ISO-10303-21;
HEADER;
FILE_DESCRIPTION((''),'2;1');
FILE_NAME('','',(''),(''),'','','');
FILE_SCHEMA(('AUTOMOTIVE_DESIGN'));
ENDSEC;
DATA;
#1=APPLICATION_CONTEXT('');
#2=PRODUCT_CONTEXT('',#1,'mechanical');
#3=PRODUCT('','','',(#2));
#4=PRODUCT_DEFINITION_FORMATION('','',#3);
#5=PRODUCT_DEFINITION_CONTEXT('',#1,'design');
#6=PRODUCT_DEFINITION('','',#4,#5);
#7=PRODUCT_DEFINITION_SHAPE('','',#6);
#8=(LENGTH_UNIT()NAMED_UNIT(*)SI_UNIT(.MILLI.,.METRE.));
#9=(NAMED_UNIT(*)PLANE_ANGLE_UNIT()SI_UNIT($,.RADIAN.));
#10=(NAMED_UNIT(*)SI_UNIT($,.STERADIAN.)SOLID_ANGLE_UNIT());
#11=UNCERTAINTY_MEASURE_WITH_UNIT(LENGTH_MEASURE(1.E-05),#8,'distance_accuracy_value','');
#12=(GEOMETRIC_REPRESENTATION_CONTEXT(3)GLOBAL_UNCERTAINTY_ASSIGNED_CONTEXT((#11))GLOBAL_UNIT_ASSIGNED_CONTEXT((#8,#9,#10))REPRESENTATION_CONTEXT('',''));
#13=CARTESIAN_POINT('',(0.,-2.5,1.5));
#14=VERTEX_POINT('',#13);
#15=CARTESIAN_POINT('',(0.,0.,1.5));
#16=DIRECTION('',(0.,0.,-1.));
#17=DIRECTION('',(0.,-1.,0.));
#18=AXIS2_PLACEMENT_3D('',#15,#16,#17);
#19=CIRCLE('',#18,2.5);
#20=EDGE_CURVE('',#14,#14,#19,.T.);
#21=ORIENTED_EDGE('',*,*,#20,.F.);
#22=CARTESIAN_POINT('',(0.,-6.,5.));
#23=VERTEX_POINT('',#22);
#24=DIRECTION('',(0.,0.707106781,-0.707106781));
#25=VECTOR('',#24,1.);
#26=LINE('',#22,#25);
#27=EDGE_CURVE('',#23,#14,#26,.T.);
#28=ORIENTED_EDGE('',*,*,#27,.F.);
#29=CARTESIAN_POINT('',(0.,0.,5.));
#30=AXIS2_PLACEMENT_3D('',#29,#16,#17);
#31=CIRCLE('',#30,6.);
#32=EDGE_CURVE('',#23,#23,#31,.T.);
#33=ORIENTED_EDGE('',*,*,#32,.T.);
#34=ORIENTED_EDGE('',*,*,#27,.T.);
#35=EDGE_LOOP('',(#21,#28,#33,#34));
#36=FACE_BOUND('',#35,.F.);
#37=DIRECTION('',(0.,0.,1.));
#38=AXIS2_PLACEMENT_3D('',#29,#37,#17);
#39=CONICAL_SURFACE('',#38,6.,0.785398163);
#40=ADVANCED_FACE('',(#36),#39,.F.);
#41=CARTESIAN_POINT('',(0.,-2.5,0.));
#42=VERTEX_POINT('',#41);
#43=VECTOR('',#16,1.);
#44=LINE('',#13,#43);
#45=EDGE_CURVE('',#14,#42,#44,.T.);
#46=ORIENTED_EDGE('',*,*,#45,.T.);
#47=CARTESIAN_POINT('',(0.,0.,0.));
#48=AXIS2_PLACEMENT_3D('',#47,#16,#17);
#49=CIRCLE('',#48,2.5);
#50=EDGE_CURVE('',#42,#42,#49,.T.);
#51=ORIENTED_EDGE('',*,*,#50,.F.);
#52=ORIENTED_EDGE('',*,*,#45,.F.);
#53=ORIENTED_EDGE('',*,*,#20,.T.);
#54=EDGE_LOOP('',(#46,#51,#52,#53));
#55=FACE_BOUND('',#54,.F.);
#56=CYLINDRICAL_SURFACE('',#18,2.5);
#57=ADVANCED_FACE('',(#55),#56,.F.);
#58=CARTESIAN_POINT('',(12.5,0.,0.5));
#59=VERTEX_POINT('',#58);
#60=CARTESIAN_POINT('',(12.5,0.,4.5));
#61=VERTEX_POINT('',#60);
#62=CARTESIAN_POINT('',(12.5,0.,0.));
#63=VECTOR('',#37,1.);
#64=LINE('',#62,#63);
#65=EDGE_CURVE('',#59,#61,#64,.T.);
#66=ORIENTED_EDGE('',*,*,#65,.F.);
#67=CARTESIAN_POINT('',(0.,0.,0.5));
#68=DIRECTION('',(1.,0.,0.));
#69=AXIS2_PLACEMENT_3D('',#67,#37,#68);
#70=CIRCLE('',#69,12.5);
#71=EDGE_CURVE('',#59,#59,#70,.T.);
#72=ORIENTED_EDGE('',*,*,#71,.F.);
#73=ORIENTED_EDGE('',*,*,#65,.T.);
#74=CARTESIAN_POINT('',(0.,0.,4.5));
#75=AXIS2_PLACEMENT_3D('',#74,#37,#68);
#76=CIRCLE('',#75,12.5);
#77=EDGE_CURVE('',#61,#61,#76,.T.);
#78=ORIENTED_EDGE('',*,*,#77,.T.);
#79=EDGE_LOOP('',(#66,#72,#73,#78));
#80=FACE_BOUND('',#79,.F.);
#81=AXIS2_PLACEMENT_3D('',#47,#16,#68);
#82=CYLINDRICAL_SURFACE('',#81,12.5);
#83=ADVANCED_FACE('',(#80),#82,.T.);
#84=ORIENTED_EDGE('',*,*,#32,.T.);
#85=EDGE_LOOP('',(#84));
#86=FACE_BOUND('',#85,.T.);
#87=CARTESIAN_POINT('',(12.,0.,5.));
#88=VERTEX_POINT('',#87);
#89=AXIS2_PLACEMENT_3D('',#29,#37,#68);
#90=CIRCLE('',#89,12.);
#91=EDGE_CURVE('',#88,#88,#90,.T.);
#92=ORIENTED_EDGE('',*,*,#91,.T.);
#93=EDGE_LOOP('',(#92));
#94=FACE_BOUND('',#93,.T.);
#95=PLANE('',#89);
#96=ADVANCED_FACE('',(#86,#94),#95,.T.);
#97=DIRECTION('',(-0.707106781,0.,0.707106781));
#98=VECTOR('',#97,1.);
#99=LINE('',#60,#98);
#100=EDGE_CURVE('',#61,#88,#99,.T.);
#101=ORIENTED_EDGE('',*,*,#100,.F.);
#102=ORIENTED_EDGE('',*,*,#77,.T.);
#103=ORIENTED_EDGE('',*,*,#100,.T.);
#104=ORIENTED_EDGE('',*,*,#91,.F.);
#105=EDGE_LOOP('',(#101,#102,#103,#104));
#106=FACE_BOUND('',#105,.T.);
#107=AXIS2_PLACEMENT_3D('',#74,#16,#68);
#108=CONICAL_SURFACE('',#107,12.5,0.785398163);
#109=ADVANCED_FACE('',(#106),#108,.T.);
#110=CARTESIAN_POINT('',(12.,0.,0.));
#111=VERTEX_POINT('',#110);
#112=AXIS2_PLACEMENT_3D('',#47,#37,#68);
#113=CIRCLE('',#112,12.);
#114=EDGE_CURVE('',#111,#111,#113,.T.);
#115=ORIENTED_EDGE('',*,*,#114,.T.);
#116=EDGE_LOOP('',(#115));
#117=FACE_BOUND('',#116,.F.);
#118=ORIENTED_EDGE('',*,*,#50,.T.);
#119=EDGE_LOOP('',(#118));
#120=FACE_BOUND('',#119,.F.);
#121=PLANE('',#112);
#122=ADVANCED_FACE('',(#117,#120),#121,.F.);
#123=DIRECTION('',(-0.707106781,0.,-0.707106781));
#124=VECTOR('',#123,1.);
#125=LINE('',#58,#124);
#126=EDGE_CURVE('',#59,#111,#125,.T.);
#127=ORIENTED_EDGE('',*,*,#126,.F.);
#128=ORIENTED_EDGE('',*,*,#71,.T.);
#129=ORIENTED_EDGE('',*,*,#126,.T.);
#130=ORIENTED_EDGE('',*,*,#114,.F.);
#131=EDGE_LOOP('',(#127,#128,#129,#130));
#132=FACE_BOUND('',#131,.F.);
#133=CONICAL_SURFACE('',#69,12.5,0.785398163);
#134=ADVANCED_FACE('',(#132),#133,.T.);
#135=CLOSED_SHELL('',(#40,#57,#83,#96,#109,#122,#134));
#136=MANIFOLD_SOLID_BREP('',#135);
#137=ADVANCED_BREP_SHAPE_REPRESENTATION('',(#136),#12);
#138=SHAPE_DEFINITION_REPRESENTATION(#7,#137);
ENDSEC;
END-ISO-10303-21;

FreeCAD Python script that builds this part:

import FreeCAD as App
import Part
import Sketcher

V = App.Vector


def edges_at(feature, points):
    """Names of the edges that pass closest to the given points."""
    edges = feature.Shape.Edges
    near = lambda p: min(range(len(edges)), key=lambda i: edges[i].distToShape(Part.Vertex(*p))[0])
    return sorted({f"Edge{near(p) + 1}" for p in points})

doc = App.newDocument("Part")
body = doc.addObject("PartDesign::Body", "Body")

sketch1 = body.newObject("Sketcher::SketchObject", "Sketch")
sketch1.AttachmentSupport = (doc.getObject("XY_Plane"), [""])
sketch1.MapMode = "FlatFace"
sketch1.addGeometry(Part.Circle(V(0, 0, 0), V(0, 0, 1), 12), False)
sketch1.addConstraint([
    Sketcher.Constraint("Coincident", 0, 3, -1, 1),
    Sketcher.Constraint("Diameter", 0, 25.0),
])
pad1 = body.newObject("PartDesign::Pad", "Pad")
pad1.Profile = sketch1
pad1.Length = 5
doc.recompute()

chamfer = body.newObject("PartDesign::Chamfer", "Chamfer")
chamfer.Base = (pad1, edges_at(pad1, [(-12.5, 0, 0), (-12.5, 0, 5)]))
chamfer.Size = 0.5

sketch2 = body.newObject("Sketcher::SketchObject", "Sketch001")
sketch2.AttachmentSupport = (doc.getObject("XY_Plane"), [""])
sketch2.MapMode = "FlatFace"
sketch2.AttachmentOffset = App.Placement(V(0, 0, 5), App.Rotation())
sketch2.addGeometry(Part.Circle(V(0, 0, 0), V(0, 0, 1), 2.5), False)
sketch2.addConstraint([
    Sketcher.Constraint("Coincident", 0, 3, -1, 1),
    Sketcher.Constraint("Diameter", 0, 5.0),
])
doc.recompute()
hole = body.newObject("PartDesign::Hole", "Hole")
hole.Profile = sketch2
hole.ThreadType = "None"
hole.Diameter = 5
hole.DepthType = "ThroughAll"
hole.HoleCutType = "Countersink"
hole.HoleCutDiameter = 12
hole.HoleCutCountersinkAngle = 90

doc.recompute()
